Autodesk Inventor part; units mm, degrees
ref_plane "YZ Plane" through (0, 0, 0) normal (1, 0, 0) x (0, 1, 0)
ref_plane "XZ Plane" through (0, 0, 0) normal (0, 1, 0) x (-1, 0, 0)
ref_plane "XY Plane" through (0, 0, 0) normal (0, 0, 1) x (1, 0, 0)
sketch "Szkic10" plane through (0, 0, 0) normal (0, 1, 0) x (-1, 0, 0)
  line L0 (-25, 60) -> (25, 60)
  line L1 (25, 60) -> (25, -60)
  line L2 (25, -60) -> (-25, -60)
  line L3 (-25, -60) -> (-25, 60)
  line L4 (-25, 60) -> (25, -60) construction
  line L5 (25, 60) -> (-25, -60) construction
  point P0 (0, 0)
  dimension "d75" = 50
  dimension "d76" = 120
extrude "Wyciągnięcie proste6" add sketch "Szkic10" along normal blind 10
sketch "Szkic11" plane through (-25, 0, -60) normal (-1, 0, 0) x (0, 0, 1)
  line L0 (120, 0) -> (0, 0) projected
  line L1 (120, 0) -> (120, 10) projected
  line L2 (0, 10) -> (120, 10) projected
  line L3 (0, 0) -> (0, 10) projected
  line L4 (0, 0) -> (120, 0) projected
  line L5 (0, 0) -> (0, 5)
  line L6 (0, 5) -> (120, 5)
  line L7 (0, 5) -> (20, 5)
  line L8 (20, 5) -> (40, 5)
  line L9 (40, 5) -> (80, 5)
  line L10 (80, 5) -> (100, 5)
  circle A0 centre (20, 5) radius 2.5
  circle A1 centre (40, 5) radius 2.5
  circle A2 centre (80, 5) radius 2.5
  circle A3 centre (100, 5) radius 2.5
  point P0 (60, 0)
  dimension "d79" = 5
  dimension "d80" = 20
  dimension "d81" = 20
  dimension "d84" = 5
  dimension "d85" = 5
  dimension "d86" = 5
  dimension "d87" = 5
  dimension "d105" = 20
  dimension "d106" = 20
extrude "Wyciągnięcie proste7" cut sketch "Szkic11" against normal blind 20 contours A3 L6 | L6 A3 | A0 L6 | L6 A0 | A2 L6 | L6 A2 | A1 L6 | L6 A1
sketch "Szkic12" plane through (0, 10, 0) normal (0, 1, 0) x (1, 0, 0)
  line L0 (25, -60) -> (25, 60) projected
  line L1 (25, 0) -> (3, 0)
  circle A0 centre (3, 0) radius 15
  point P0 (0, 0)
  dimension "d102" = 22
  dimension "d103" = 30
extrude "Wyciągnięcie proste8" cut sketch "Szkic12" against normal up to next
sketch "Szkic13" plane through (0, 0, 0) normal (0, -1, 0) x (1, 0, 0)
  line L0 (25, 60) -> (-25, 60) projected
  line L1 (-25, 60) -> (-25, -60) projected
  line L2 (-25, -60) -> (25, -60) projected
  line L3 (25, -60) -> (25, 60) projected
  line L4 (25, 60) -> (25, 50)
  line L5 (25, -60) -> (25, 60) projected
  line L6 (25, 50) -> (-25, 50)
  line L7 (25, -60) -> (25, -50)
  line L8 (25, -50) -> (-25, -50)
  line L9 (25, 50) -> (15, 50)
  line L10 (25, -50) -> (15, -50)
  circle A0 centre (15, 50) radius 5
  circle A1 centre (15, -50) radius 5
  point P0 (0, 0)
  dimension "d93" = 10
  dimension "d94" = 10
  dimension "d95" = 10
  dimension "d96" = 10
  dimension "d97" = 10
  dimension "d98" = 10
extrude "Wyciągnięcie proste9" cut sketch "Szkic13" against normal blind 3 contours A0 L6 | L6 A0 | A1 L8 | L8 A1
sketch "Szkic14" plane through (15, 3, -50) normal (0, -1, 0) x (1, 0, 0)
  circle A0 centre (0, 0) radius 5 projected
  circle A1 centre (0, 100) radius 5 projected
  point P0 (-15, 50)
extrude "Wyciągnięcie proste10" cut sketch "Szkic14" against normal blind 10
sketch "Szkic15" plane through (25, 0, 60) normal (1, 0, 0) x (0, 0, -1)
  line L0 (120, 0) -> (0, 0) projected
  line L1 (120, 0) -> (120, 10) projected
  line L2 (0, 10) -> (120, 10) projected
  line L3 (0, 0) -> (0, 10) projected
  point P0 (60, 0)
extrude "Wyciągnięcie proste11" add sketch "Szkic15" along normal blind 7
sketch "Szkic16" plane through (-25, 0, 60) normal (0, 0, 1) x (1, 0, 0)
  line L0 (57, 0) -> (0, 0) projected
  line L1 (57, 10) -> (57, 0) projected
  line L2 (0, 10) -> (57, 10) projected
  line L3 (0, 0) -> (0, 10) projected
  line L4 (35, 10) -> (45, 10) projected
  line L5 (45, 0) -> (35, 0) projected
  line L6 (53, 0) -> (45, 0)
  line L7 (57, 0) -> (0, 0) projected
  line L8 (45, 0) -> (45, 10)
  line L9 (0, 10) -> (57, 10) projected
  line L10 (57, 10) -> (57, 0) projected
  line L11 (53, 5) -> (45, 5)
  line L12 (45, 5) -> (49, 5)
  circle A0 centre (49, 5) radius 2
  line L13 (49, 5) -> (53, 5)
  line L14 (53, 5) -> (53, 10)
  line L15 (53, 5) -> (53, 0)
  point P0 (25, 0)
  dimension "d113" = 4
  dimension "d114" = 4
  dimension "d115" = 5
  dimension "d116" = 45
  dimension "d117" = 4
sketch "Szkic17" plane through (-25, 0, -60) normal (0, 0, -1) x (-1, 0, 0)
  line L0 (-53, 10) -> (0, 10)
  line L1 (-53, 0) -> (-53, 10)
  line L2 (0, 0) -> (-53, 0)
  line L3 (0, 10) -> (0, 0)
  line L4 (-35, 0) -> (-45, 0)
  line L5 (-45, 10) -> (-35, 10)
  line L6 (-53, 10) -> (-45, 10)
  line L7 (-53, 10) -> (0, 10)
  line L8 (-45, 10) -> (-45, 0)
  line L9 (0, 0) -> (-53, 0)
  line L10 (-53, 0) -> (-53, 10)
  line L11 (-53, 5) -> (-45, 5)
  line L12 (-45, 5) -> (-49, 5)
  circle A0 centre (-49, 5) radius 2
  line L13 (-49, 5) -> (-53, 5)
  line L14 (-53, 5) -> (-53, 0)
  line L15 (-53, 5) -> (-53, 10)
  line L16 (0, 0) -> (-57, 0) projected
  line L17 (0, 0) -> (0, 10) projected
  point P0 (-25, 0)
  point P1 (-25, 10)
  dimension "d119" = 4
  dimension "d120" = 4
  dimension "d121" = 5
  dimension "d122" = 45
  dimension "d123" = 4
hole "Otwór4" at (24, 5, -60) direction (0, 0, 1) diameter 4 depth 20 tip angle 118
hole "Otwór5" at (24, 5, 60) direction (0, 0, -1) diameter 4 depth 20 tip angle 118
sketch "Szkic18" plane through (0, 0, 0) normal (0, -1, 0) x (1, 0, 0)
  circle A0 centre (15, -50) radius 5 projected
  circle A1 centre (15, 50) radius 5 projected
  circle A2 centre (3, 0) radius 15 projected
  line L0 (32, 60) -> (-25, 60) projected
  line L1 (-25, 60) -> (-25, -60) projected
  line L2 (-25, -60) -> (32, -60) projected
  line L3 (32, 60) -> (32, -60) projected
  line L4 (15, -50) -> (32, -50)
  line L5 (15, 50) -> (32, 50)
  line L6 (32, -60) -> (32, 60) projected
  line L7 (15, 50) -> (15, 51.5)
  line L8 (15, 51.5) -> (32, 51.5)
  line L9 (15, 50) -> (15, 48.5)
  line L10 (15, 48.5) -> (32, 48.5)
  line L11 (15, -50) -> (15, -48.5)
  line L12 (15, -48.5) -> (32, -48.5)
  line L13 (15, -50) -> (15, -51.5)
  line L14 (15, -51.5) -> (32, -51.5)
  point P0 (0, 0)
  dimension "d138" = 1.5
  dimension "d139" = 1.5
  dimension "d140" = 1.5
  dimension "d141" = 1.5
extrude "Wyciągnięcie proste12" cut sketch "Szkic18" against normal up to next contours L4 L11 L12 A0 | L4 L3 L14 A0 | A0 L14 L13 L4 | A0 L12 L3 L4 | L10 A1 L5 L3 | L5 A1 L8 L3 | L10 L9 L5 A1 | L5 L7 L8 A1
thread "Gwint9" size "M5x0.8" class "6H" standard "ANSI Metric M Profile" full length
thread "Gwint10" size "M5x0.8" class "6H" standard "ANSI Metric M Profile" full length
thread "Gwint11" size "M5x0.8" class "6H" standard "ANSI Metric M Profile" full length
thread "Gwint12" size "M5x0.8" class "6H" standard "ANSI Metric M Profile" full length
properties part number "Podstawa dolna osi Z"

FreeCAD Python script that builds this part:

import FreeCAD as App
import Part
import Sketcher
Q = App.Units.Quantity

doc = App.newDocument("Part")
body = doc.addObject("PartDesign::Body", "Body")

# Sketch on XZ plane
sketch1 = doc.addObject("Sketcher::SketchObject", "Sketch")
body.addObject(sketch1)
sketch1.AttachmentSupport = (doc.XZ_Plane, [""])
sketch1.MapMode = "FlatFace"
sketch1.addGeometry([
    Part.LineSegment(App.Vector(-25, 60, 0), App.Vector(25, 60, 0)),
    Part.LineSegment(App.Vector(25, 60, 0), App.Vector(25, -60, 0)),
    Part.LineSegment(App.Vector(25, -60, 0), App.Vector(-25, -60, 0)),
    Part.LineSegment(App.Vector(-25, -60, 0), App.Vector(-25, 60, 0)),
], False)
sketch1.addConstraint([
    Sketcher.Constraint("Coincident", 0, 2, 1, 1),
    Sketcher.Constraint("Coincident", 1, 2, 2, 1),
    Sketcher.Constraint("Coincident", 2, 2, 3, 1),
    Sketcher.Constraint("Coincident", 3, 2, 0, 1),
    Sketcher.Constraint("Horizontal", 0),
    Sketcher.Constraint("Vertical", 1),
    Sketcher.Constraint("Horizontal", 2),
    Sketcher.Constraint("Vertical", 3),
    Sketcher.Constraint("Symmetric", 0, 2, 2, 2, -1, 1),
    Sketcher.Constraint("DistanceX", 0, 1, 0, 2, Q("50 mm")),
    Sketcher.Constraint("DistanceY", 1, 2, 1, 1, Q("120 mm")),
])
pad1 = doc.addObject("PartDesign::Pad", "Pad")
body.addObject(pad1)
pad1.Profile = sketch1
pad1.Length = 10
pad1.Reversed = True

# Sketch on YZ plane
sketch2 = doc.addObject("Sketcher::SketchObject", "Sketch001")
body.addObject(sketch2)
sketch2.AttachmentSupport = (doc.YZ_Plane, [""])
sketch2.MapMode = "FlatFace"
sketch2.AttachmentOffset = App.Placement(App.Vector(0, 0, -25), App.Rotation())
sketch2.addGeometry([
    Part.Circle(App.Vector(5, 40, 0), App.Vector(0, 0, 1), 2.5),
    Part.Circle(App.Vector(5, -40, 0), App.Vector(0, 0, 1), 2.5),
    Part.Circle(App.Vector(5, 20, 0), App.Vector(0, 0, 1), 2.5),
    Part.Circle(App.Vector(5, -20, 0), App.Vector(0, 0, 1), 2.5),
], False)
sketch2.addConstraint([
    Sketcher.Constraint("Equal", 0, 1),
    Sketcher.Constraint("Equal", 1, 2),
    Sketcher.Constraint("Equal", 2, 3),
    Sketcher.Constraint("Symmetric", 0, 3, 1, 3, -1),
    Sketcher.Constraint("Symmetric", 2, 3, 3, 3, -1),
    Sketcher.Constraint("Vertical", 1, 3, 2, 3),
    Sketcher.Constraint("Diameter", 0, Q("5 mm")),
    Sketcher.Constraint("DistanceX", -1, 1, 0, 3, Q("5 mm")),
    Sketcher.Constraint("DistanceY", -1, 1, 2, 3, Q("20 mm")),
    Sketcher.Constraint("DistanceY", 2, 3, 0, 3, Q("20 mm")),
])
pocket1 = doc.addObject("PartDesign::Pocket", "Pocket")
body.addObject(pocket1)
pocket1.Profile = sketch2
pocket1.Length = 20
pocket1.Reversed = True

# Sketch on XZ plane
sketch3 = doc.addObject("Sketcher::SketchObject", "Sketch002")
body.addObject(sketch3)
sketch3.AttachmentSupport = (doc.XZ_Plane, [""])
sketch3.MapMode = "FlatFace"
sketch3.AttachmentOffset = App.Placement(App.Vector(0, 0, -10), App.Rotation())
sketch3.addGeometry(Part.Circle(App.Vector(3, 0, 0), App.Vector(0, 0, 1), 15), False)
sketch3.addConstraint([
    Sketcher.Constraint("PointOnObject", 0, 3, -1),
    Sketcher.Constraint("Diameter", 0, Q("30 mm")),
    Sketcher.Constraint("DistanceX", -1, 1, 0, 3, Q("3 mm")),
])
pocket2 = doc.addObject("PartDesign::Pocket", "Pocket001")
body.addObject(pocket2)
pocket2.Profile = sketch3
pocket2.Type = "UpToFirst"
pocket2.Reversed = True

# Sketch on XZ plane
sketch4 = doc.addObject("Sketcher::SketchObject", "Sketch003")
body.addObject(sketch4)
sketch4.AttachmentSupport = (doc.XZ_Plane, [""])
sketch4.MapMode = "FlatFace"
sketch4.addGeometry([
    Part.Circle(App.Vector(15, 50, 0), App.Vector(0, 0, 1), 5),
    Part.Circle(App.Vector(15, -50, 0), App.Vector(0, 0, 1), 5),
], False)
sketch4.addConstraint([
    Sketcher.Constraint("Equal", 0, 1),
    Sketcher.Constraint("Symmetric", 0, 3, 1, 3, -1),
    Sketcher.Constraint("Diameter", 0, Q("10 mm")),
    Sketcher.Constraint("DistanceX", -1, 1, 0, 3, Q("15 mm")),
    Sketcher.Constraint("DistanceY", -1, 1, 0, 3, Q("50 mm")),
])
pocket3 = doc.addObject("PartDesign::Pocket", "Pocket002")
body.addObject(pocket3)
pocket3.Profile = sketch4
pocket3.Length = 3

# Sketch on XZ plane
sketch5 = doc.addObject("Sketcher::SketchObject", "Sketch004")
body.addObject(sketch5)
sketch5.AttachmentSupport = (doc.XZ_Plane, [""])
sketch5.MapMode = "FlatFace"
sketch5.AttachmentOffset = App.Placement(App.Vector(0, 0, -3), App.Rotation())
sketch5.addGeometry([
    Part.Circle(App.Vector(15, -50, 0), App.Vector(0, 0, 1), 5),
    Part.Circle(App.Vector(15, 50, 0), App.Vector(0, 0, 1), 5),
], False)
sketch5.addConstraint([
    Sketcher.Constraint("Equal", 0, 1),
    Sketcher.Constraint("Symmetric", 0, 3, 1, 3, -1),
    Sketcher.Constraint("Diameter", 0, Q("10 mm")),
    Sketcher.Constraint("DistanceX", -1, 1, 0, 3, Q("15 mm")),
    Sketcher.Constraint("DistanceY", 0, 3, -1, 1, Q("50 mm")),
])
pocket4 = doc.addObject("PartDesign::Pocket", "Pocket003")
body.addObject(pocket4)
pocket4.Profile = sketch5
pocket4.Length = 10

# Sketch on YZ plane
sketch6 = doc.addObject("Sketcher::SketchObject", "Sketch005")
body.addObject(sketch6)
sketch6.AttachmentSupport = (doc.YZ_Plane, [""])
sketch6.MapMode = "FlatFace"
sketch6.AttachmentOffset = App.Placement(App.Vector(0, 0, 25), App.Rotation())
sketch6.addGeometry([
    Part.LineSegment(App.Vector(0, 60, 0), App.Vector(0, -60, 0)),
    Part.LineSegment(App.Vector(0, -60, 0), App.Vector(10, -60, 0)),
    Part.LineSegment(App.Vector(10, -60, 0), App.Vector(10, 60, 0)),
    Part.LineSegment(App.Vector(10, 60, 0), App.Vector(0, 60, 0)),
], False)
sketch6.addConstraint([
    Sketcher.Constraint("Coincident", 0, 2, 1, 1),
    Sketcher.Constraint("Coincident", 1, 2, 2, 1),
    Sketcher.Constraint("Coincident", 2, 2, 3, 1),
    Sketcher.Constraint("Coincident", 3, 2, 0, 1),
    Sketcher.Constraint("Vertical", 0),
    Sketcher.Constraint("Horizontal", 1),
    Sketcher.Constraint("Vertical", 2),
    Sketcher.Constraint("Horizontal", 3),
    Sketcher.Constraint("Symmetric", 0, 2, 3, 2, -1, 1),
    Sketcher.Constraint("DistanceX", 1, 1, 1, 2, Q("10 mm")),
    Sketcher.Constraint("DistanceY", 0, 2, 0, 1, Q("120 mm")),
])
pad2 = doc.addObject("PartDesign::Pad", "Pad001")
body.addObject(pad2)
pad2.Profile = sketch6
pad2.Length = 7

# Sketch on XY plane
sketch7 = doc.addObject("Sketcher::SketchObject", "Sketch006")
body.addObject(sketch7)
sketch7.AttachmentSupport = (doc.XY_Plane, [""])
sketch7.MapMode = "FlatFace"
sketch7.AttachmentOffset = App.Placement(App.Vector(0, 0, -60), App.Rotation())
sketch7.addGeometry(Part.Circle(App.Vector(24, 5, 0), App.Vector(0, 0, 1), 2), False)
sketch7.addConstraint([
    Sketcher.Constraint("Diameter", 0, Q("4 mm")),
    Sketcher.Constraint("DistanceX", -1, 1, 0, 3, Q("24 mm")),
    Sketcher.Constraint("DistanceY", -1, 1, 0, 3, Q("5 mm")),
])
doc.recompute()
hole = doc.addObject("PartDesign::Hole", "Hole")
body.addObject(hole)
hole.Profile = sketch7
hole.ThreadType = "None"
hole.Diameter = 4
hole.DepthType = "Dimension"
hole.Depth = 20
hole.DrillPoint = "Angled"
hole.DrillPointAngle = 118
hole.Reversed = True

# Sketch on XY plane
sketch8 = doc.addObject("Sketcher::SketchObject", "Sketch007")
body.addObject(sketch8)
sketch8.AttachmentSupport = (doc.XY_Plane, [""])
sketch8.MapMode = "FlatFace"
sketch8.AttachmentOffset = App.Placement(App.Vector(0, 0, 60), App.Rotation())
sketch8.addGeometry(Part.Circle(App.Vector(24, 5, 0), App.Vector(0, 0, 1), 2), False)
sketch8.addConstraint([
    Sketcher.Constraint("Diameter", 0, Q("4 mm")),
    Sketcher.Constraint("DistanceX", -1, 1, 0, 3, Q("24 mm")),
    Sketcher.Constraint("DistanceY", -1, 1, 0, 3, Q("5 mm")),
])
doc.recompute()
hole2 = doc.addObject("PartDesign::Hole", "Hole001")
body.addObject(hole2)
hole2.Profile = sketch8
hole2.ThreadType = "None"
hole2.Diameter = 4
hole2.DepthType = "Dimension"
hole2.Depth = 20
hole2.DrillPoint = "Angled"
hole2.DrillPointAngle = 118

# Sketch on XZ plane
sketch9 = doc.addObject("Sketcher::SketchObject", "Sketch008")
body.addObject(sketch9)
sketch9.AttachmentSupport = (doc.XZ_Plane, [""])
sketch9.MapMode = "FlatFace"
sketch9.addGeometry([
    Part.LineSegment(App.Vector(15, -48.5, 0), App.Vector(15, -51.5, 0)),  # 0
    Part.LineSegment(App.Vector(15, -51.5, 0), App.Vector(32, -51.5, 0)),  # 1
    Part.LineSegment(App.Vector(32, -51.5, 0), App.Vector(32, -48.5, 0)),  # 2
    Part.LineSegment(App.Vector(32, -48.5, 0), App.Vector(15, -48.5, 0)),  # 3
    Part.LineSegment(App.Vector(32, 48.5, 0), App.Vector(32, 51.5, 0)),  # 4
    Part.LineSegment(App.Vector(32, 51.5, 0), App.Vector(15, 51.5, 0)),  # 5
    Part.LineSegment(App.Vector(15, 51.5, 0), App.Vector(15, 48.5, 0)),  # 6
    Part.LineSegment(App.Vector(15, 48.5, 0), App.Vector(32, 48.5, 0)),  # 7
], False)
sketch9.addConstraint([
    Sketcher.Constraint("Coincident", 0, 2, 1, 1),
    Sketcher.Constraint("Coincident", 1, 2, 2, 1),
    Sketcher.Constraint("Coincident", 2, 2, 3, 1),
    Sketcher.Constraint("Coincident", 3, 2, 0, 1),
    Sketcher.Constraint("Coincident", 4, 2, 5, 1),
    Sketcher.Constraint("Coincident", 5, 2, 6, 1),
    Sketcher.Constraint("Coincident", 6, 2, 7, 1),
    Sketcher.Constraint("Coincident", 7, 2, 4, 1),
    Sketcher.Constraint("Vertical", 0),
    Sketcher.Constraint("Horizontal", 1),
    Sketcher.Constraint("Vertical", 2),
    Sketcher.Constraint("Horizontal", 3),
    Sketcher.Constraint("Vertical", 4),
    Sketcher.Constraint("Horizontal", 5),
    Sketcher.Constraint("Vertical", 6),
    Sketcher.Constraint("Horizontal", 7),
    Sketcher.Constraint("Symmetric", 1, 2, 4, 2, -1),
    Sketcher.Constraint("Symmetric", 3, 2, 6, 2, -1),
    Sketcher.Constraint("DistanceX", 1, 1, 1, 2, Q("17 mm")),
    Sketcher.Constraint("DistanceY", 0, 2, 0, 1, Q("3 mm")),
    Sketcher.Constraint("DistanceX", -1, 1, 0, 2, Q("15 mm")),
    Sketcher.Constraint("DistanceY", 2, 2, 4, 2, Q("100 mm")),
])
pocket5 = doc.addObject("PartDesign::Pocket", "Pocket004")
body.addObject(pocket5)
pocket5.Profile = sketch9
pocket5.Type = "UpToFirst"

doc.recompute()
